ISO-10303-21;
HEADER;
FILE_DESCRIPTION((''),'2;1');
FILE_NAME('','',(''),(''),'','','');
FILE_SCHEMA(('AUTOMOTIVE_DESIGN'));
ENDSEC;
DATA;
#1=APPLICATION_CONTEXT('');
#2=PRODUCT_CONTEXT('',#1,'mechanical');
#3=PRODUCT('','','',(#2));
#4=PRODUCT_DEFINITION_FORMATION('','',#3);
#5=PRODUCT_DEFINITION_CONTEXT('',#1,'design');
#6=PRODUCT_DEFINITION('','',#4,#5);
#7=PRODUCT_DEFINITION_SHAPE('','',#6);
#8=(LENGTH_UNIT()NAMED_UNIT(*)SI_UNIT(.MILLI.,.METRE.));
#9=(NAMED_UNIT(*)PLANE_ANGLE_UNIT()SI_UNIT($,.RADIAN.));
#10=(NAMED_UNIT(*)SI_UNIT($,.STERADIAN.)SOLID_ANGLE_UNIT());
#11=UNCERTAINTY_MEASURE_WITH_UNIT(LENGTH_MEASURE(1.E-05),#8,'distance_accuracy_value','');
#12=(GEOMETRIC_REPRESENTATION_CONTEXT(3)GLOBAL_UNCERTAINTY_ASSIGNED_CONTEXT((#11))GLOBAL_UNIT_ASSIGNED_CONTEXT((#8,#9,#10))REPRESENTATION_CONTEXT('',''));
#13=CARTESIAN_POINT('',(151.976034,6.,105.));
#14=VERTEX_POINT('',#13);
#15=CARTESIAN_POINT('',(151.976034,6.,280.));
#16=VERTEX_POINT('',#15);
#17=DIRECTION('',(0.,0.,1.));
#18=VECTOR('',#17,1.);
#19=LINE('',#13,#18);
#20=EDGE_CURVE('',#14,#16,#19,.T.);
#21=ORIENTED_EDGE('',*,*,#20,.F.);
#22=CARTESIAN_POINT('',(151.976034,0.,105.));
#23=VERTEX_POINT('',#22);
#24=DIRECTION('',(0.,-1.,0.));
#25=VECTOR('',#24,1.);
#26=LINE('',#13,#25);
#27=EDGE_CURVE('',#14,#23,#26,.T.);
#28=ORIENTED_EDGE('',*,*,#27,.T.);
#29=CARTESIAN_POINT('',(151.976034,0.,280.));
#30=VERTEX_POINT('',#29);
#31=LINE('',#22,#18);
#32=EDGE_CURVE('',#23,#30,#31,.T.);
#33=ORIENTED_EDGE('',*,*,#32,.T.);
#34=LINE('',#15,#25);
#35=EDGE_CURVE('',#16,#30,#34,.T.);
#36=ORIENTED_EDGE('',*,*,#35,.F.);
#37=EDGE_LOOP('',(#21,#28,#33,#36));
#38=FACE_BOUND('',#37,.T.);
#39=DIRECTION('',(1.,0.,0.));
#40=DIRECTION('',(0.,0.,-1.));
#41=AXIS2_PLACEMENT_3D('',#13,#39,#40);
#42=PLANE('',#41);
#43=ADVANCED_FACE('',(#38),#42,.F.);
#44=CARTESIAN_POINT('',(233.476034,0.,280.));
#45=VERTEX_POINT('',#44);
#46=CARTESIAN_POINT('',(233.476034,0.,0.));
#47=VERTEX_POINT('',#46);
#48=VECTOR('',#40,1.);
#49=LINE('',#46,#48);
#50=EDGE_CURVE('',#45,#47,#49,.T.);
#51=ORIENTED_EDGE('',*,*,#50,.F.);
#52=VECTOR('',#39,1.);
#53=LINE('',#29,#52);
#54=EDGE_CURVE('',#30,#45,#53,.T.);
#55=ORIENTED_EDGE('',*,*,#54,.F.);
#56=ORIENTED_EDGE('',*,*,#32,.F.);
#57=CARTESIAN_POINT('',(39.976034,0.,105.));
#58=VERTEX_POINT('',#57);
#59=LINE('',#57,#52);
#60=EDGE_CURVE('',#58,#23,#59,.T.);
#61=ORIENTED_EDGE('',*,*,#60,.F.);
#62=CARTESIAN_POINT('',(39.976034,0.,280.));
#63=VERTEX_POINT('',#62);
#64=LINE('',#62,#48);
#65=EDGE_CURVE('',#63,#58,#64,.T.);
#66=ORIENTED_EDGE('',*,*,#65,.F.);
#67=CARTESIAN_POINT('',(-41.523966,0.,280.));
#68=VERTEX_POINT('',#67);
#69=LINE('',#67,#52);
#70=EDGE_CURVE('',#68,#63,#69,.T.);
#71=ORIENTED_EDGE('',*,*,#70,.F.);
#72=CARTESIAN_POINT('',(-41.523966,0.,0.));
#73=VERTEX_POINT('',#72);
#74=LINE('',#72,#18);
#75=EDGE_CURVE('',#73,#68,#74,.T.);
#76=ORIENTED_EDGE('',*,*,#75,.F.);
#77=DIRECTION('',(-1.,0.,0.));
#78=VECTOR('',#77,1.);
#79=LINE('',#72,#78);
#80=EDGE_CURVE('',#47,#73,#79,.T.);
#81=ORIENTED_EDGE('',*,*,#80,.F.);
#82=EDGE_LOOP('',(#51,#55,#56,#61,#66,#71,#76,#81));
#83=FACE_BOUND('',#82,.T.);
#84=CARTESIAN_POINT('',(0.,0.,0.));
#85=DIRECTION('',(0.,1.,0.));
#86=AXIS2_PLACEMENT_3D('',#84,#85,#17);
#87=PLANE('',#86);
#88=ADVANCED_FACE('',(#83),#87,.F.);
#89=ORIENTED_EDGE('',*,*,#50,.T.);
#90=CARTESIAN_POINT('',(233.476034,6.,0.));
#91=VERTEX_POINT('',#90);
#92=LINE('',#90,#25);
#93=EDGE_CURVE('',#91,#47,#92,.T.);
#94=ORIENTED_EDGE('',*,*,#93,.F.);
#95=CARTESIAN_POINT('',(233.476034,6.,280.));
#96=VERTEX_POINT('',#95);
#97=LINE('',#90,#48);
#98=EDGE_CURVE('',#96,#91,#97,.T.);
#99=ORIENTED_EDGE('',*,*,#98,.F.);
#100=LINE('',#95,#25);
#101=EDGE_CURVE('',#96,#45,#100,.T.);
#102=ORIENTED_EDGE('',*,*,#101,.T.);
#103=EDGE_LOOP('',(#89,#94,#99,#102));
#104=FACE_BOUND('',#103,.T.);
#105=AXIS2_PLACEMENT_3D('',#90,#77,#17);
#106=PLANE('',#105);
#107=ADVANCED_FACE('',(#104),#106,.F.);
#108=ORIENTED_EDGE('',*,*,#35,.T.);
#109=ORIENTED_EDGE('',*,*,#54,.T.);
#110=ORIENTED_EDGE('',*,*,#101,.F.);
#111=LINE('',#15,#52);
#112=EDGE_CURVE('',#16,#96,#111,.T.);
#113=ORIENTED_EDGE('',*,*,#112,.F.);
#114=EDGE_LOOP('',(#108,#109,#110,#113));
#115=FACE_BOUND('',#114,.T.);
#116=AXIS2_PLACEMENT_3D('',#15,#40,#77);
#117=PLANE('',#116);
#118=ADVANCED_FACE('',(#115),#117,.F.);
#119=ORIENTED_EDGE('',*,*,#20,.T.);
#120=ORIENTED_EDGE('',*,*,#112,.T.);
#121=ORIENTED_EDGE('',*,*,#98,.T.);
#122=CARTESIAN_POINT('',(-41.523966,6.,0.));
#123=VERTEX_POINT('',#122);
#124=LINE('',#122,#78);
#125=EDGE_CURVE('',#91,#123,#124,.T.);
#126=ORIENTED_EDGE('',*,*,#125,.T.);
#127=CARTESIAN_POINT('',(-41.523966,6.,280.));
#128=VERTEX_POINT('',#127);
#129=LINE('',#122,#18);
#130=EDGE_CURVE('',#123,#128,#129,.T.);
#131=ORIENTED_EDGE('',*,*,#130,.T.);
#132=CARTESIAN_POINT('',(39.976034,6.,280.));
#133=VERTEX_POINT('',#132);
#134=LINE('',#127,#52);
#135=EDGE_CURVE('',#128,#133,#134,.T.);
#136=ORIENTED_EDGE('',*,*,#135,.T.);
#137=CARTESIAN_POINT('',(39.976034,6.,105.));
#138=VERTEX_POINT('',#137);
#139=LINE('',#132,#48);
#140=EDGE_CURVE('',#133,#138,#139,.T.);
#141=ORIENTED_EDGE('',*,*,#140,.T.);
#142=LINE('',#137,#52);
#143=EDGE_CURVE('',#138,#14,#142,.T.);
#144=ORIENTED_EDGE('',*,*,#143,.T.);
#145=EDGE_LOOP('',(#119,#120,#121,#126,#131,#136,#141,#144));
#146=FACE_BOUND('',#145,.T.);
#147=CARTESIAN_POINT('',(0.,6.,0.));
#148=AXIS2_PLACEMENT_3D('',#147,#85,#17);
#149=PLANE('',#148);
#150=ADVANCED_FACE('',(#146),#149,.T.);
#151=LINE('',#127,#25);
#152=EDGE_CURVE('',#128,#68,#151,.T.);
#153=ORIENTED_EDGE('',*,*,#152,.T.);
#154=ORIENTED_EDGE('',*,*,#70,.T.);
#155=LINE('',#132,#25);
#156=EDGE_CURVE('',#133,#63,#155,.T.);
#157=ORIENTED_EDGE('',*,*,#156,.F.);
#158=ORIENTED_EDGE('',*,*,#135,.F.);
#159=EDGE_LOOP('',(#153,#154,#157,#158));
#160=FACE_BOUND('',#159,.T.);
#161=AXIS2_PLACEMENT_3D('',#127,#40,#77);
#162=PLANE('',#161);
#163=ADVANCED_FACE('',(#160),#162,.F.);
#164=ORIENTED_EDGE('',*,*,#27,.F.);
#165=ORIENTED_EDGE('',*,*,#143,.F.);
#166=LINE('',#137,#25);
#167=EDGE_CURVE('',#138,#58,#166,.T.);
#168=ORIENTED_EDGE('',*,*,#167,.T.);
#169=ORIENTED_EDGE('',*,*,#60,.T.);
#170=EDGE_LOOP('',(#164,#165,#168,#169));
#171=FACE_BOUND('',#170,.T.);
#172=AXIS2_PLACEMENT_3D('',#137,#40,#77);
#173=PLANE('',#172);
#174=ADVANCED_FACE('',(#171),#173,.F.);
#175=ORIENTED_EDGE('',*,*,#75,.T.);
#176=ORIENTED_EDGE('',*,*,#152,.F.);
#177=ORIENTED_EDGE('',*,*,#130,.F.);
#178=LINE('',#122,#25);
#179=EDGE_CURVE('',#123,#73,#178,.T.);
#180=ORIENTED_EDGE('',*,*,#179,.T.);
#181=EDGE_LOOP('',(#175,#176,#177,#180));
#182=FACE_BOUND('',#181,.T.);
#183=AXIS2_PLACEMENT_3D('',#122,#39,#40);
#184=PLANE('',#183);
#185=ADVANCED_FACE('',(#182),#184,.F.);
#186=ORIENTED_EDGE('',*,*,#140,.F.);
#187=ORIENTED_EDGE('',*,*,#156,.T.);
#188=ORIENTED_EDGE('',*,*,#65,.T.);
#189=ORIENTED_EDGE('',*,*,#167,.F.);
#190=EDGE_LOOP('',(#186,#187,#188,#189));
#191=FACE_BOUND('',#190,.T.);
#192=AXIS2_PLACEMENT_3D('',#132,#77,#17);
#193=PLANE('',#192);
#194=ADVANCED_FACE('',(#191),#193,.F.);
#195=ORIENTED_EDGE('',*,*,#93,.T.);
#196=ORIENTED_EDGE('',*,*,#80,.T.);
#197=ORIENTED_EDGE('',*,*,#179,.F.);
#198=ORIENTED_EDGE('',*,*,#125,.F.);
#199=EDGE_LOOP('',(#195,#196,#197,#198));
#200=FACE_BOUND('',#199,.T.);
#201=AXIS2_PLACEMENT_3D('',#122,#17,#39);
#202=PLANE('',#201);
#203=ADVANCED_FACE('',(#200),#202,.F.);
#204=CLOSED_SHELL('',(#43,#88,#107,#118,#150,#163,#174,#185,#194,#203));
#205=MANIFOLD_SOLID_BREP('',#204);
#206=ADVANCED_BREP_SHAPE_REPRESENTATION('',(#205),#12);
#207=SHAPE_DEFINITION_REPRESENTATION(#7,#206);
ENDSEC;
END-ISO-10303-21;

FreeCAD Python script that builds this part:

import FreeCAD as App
import Part
import Sketcher

V = App.Vector
Q = App.Units.Quantity

doc = App.newDocument("Part")
body = doc.addObject("PartDesign::Body", "Body")

sketch1 = body.newObject("Sketcher::SketchObject", "Sketch")
sketch1.AttachmentSupport = (doc.getObject("XZ_Plane"), [""])
sketch1.MapMode = "FlatFace"
sketch1.addGeometry([
    Part.LineSegment(V(233, 0, 0), V(-42, 0, 0)),
    Part.LineSegment(V(-42, 0, 0), V(-42, 280, 0)),
    Part.LineSegment(V(-42, 280, 0), V(40, 280, 0)),
    Part.LineSegment(V(40, 280, 0), V(40, 105, 0)),
    Part.LineSegment(V(40, 105, 0), V(152, 105, 0)),
    Part.LineSegment(V(152, 105, 0), V(152, 280, 0)),
    Part.LineSegment(V(152, 280, 0), V(233, 280, 0)),
    Part.LineSegment(V(233, 280, 0), V(233, 0, 0)),
], False)
sketch1.addConstraint([
    Sketcher.Constraint("Coincident", 0, 2, 1, 1),
    Sketcher.Constraint("Coincident", 1, 2, 2, 1),
    Sketcher.Constraint("Coincident", 2, 2, 3, 1),
    Sketcher.Constraint("Coincident", 3, 2, 4, 1),
    Sketcher.Constraint("Coincident", 4, 2, 5, 1),
    Sketcher.Constraint("Coincident", 5, 2, 6, 1),
    Sketcher.Constraint("Coincident", 6, 2, 7, 1),
    Sketcher.Constraint("Coincident", 7, 2, 0, 1),
    Sketcher.Constraint("Horizontal", 0),
    Sketcher.Constraint("Vertical", 1),
    Sketcher.Constraint("Horizontal", 2),
    Sketcher.Constraint("Vertical", 3),
    Sketcher.Constraint("Horizontal", 4),
    Sketcher.Constraint("Vertical", 5),
    Sketcher.Constraint("Horizontal", 6),
    Sketcher.Constraint("Vertical", 7),
    Sketcher.Constraint("PointOnObject", 0, 2, -1),
    Sketcher.Constraint("Horizontal", 2, 2, 5, 2),
    Sketcher.Constraint("Equal", 2, 6),
    Sketcher.Constraint("DistanceX", 0, 2, 0, 1, Q("275 mm")),
    Sketcher.Constraint("DistanceX", 4, 1, 4, 2, Q("112 mm")),
    Sketcher.Constraint("DistanceY", 1, 1, 1, 2, Q("280 mm")),
    Sketcher.Constraint("DistanceY", 3, 2, 3, 1, Q("175 mm")),
    Sketcher.Constraint("DistanceX", 0, 2, -1, 1, Q("41.523966 mm")),
])
pad1 = body.newObject("PartDesign::Pad", "Pad")
pad1.Profile = sketch1
pad1.Length = 6
pad1.Reversed = True

doc.recompute()
